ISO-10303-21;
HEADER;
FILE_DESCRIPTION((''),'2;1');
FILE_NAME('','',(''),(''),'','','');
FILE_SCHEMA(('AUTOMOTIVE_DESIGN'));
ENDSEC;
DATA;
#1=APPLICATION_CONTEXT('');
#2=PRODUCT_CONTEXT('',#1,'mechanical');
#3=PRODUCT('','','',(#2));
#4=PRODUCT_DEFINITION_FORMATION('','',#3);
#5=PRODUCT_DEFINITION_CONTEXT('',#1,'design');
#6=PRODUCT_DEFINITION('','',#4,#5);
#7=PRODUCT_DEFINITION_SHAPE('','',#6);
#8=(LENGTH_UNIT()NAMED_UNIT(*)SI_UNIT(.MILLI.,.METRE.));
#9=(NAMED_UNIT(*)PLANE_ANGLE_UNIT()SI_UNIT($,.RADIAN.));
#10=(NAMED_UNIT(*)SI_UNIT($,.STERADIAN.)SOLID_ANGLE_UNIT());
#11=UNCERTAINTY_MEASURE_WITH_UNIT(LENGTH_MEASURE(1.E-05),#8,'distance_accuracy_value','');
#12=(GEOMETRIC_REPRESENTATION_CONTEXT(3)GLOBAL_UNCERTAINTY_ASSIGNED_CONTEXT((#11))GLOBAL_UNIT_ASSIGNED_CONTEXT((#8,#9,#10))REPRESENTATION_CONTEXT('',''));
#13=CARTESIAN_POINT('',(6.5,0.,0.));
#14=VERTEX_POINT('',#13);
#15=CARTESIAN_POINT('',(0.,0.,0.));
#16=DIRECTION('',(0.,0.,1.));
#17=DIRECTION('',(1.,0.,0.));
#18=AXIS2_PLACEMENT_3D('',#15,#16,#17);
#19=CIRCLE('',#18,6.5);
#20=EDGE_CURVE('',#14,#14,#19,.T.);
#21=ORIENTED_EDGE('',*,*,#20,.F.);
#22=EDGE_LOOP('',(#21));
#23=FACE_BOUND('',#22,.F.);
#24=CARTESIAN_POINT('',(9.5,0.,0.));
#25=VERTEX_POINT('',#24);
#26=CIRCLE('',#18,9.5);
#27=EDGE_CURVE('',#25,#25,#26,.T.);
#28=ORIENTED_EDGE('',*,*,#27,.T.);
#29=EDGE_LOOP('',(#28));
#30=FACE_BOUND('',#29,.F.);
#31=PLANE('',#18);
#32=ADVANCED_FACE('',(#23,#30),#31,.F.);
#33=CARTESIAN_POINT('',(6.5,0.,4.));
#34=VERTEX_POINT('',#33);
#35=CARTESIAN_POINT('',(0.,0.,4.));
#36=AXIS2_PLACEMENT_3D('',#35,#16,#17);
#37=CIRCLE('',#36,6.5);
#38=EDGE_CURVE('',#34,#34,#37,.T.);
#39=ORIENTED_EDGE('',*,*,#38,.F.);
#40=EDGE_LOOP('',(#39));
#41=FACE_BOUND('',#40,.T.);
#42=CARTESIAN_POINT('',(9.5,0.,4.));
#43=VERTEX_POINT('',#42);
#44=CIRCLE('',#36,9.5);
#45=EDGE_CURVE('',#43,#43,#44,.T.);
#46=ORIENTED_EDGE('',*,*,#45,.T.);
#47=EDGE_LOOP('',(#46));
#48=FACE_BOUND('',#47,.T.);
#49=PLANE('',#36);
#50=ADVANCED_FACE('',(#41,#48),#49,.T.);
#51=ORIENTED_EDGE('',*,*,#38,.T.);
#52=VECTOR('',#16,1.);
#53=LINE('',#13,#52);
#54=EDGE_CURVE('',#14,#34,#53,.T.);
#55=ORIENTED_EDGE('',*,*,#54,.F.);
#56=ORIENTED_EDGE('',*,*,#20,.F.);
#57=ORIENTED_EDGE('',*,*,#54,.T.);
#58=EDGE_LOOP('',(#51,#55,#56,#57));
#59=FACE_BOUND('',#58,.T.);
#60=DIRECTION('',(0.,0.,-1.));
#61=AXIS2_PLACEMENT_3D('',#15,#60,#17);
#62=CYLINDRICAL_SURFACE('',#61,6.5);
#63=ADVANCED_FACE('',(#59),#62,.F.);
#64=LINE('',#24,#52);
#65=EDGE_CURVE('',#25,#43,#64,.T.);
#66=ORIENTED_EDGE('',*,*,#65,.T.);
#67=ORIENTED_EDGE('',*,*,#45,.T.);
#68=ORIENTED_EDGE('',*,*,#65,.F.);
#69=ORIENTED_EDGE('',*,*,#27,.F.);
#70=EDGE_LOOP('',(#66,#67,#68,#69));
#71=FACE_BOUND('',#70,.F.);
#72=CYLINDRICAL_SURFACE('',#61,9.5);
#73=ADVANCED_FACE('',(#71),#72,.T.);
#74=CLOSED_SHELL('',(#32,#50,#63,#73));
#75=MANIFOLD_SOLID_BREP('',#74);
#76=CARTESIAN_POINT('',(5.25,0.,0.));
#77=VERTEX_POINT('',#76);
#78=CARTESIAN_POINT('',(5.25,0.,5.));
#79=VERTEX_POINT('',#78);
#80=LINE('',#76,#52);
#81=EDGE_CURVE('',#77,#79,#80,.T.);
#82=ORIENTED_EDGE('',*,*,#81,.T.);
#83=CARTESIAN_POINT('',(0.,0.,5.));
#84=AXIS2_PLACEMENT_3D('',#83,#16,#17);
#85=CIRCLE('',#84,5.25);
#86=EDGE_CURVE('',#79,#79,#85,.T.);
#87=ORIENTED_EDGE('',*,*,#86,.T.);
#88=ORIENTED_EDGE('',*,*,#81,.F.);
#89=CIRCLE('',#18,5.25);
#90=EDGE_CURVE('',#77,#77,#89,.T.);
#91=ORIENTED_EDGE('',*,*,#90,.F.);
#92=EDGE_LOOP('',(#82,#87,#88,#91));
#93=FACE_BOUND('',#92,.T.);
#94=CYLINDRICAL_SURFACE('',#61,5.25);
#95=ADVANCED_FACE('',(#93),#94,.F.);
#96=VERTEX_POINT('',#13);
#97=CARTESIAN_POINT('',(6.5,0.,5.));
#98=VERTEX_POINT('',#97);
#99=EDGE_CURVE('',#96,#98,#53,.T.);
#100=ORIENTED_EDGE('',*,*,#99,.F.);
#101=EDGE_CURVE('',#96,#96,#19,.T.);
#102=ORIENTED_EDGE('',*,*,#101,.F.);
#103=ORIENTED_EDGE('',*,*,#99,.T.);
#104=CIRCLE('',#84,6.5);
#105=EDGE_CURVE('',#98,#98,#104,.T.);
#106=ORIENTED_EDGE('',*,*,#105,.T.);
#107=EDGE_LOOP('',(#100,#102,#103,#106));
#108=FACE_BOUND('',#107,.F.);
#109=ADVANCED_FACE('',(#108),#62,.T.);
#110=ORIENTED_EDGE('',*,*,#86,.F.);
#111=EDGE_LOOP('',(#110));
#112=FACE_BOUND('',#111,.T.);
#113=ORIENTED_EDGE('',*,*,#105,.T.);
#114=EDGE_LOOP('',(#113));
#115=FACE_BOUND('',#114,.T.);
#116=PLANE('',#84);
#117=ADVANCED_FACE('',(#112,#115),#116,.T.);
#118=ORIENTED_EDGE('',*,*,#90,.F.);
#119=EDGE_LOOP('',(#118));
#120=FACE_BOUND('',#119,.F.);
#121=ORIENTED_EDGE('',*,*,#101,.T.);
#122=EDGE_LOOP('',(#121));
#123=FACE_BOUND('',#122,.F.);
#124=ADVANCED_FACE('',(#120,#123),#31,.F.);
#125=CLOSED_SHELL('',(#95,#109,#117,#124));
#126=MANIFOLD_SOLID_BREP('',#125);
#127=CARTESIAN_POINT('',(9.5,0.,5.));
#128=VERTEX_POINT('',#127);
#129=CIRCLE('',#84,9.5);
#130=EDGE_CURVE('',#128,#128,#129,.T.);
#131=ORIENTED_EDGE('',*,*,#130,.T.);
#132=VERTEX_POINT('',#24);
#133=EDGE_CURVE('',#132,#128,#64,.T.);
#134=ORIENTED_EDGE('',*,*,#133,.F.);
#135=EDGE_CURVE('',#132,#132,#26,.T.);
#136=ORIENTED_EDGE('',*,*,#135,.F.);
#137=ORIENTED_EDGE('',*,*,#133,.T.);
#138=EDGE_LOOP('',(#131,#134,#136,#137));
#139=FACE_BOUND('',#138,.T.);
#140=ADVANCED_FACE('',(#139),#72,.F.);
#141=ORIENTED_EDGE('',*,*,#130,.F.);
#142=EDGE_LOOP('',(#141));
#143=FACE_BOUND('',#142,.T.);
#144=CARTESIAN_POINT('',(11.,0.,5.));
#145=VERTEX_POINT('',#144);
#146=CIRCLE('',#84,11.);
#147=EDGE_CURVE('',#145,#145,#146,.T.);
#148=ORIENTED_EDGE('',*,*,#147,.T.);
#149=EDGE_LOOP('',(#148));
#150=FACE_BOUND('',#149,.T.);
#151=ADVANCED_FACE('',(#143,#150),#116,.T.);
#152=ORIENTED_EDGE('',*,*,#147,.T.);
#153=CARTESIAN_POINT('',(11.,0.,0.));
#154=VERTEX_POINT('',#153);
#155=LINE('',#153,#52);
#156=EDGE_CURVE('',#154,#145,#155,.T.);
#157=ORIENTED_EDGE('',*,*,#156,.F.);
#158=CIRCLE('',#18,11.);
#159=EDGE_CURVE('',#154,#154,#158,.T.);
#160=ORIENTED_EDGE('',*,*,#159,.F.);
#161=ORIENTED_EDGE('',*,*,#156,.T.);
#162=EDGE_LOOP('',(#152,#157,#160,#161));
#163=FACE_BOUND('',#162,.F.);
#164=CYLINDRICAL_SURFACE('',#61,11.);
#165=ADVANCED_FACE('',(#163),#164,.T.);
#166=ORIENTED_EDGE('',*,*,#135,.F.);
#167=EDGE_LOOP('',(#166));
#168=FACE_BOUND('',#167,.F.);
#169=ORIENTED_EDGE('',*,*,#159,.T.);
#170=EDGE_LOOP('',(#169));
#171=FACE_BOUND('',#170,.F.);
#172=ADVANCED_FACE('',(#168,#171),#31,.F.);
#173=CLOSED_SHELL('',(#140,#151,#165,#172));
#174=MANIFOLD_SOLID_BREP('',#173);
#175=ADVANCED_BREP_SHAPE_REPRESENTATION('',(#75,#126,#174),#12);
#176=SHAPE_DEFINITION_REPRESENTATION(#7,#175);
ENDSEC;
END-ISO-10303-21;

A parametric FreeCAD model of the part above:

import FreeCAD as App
import Part
import Sketcher
from FreeCAD import Vector

doc = App.newDocument("Part")
params = doc.addObject("Spreadsheet::Sheet", "Params")
for row, (alias, value) in enumerate([
    ("sketch1_diameter", "22 mm"),
    ("sketch1_diameter2", "19 mm"),
    ("pad1_length", "5 mm"),
    ("sketch2_diameter", "13 mm"),
    ("sketch2_diameter2", "10.5 mm"),
    ("pad2_length", "5 mm"),
    ("sketch3_diameter", "19 mm"),
    ("sketch3_diameter2", "13 mm"),
    ("pad3_length", "4 mm"),
], start=1):
    params.set(f"A{row}", alias)
    params.set(f"B{row}", "=" + value)
    params.setAlias(f"B{row}", alias)

body = doc.addObject("PartDesign::Body", "Body")

# Sketch on XY plane
sketch1 = body.newObject("Sketcher::SketchObject", "Sketch")
sketch1.AttachmentSupport = (doc.getObject("XY_Plane"), [""])
sketch1.MapMode = "FlatFace"
sketch1.addGeometry(Part.Circle(Vector(0, 0, 0), Vector(0, 0, 1), 11), False)
sketch1.addGeometry(Part.Circle(Vector(0, 0, 0), Vector(0, 0, 1), 10), False)
sketch1.addConstraint(Sketcher.Constraint("Coincident", 0, 3, -1, 1))
sketch1.addConstraint(Sketcher.Constraint("Coincident", 1, 3, -1, 1))
sketch1.addConstraint(Sketcher.Constraint("Diameter", 0, 22.0))
sketch1.addConstraint(Sketcher.Constraint("Diameter", 1, 19.0))
sketch1.setExpression("Constraints[2]", "Params.sketch1_diameter")
sketch1.setExpression("Constraints[3]", "Params.sketch1_diameter2")
pad1 = body.newObject("PartDesign::Pad", "Pad")
pad1.Profile = sketch1
pad1.setExpression("Length", "Params.pad1_length")
body2 = doc.addObject("PartDesign::Body", "Body001")

# Sketch on XY plane
sketch2 = body2.newObject("Sketcher::SketchObject", "Sketch001")
sketch2.AttachmentSupport = (doc.getObject("XY_Plane001"), [""])
sketch2.MapMode = "FlatFace"
sketch2.addGeometry(Part.Circle(Vector(0, 0, 0), Vector(0, 0, 1), 6), False)
sketch2.addGeometry(Part.Circle(Vector(0, 0, 0), Vector(0, 0, 1), 5), False)
sketch2.addConstraint(Sketcher.Constraint("Coincident", 0, 3, -1, 1))
sketch2.addConstraint(Sketcher.Constraint("Coincident", 1, 3, -1, 1))
sketch2.addConstraint(Sketcher.Constraint("Diameter", 0, 13.0))
sketch2.addConstraint(Sketcher.Constraint("Diameter", 1, 10.5))
sketch2.setExpression("Constraints[2]", "Params.sketch2_diameter")
sketch2.setExpression("Constraints[3]", "Params.sketch2_diameter2")
pad2 = body2.newObject("PartDesign::Pad", "Pad001")
pad2.Profile = sketch2
pad2.setExpression("Length", "Params.pad2_length")
body3 = doc.addObject("PartDesign::Body", "Body002")

# Sketch on XY plane
sketch3 = body3.newObject("Sketcher::SketchObject", "Sketch002")
sketch3.AttachmentSupport = (doc.getObject("XY_Plane002"), [""])
sketch3.MapMode = "FlatFace"
sketch3.addGeometry(Part.Circle(Vector(0, 0, 0), Vector(0, 0, 1), 10), False)
sketch3.addGeometry(Part.Circle(Vector(0, 0, 0), Vector(0, 0, 1), 6), False)
sketch3.addConstraint(Sketcher.Constraint("Coincident", 0, 3, -1, 1))
sketch3.addConstraint(Sketcher.Constraint("Coincident", 1, 3, -1, 1))
sketch3.addConstraint(Sketcher.Constraint("Diameter", 0, 19.0))
sketch3.addConstraint(Sketcher.Constraint("Diameter", 1, 13.0))
sketch3.setExpression("Constraints[2]", "Params.sketch3_diameter")
sketch3.setExpression("Constraints[3]", "Params.sketch3_diameter2")
pad3 = body3.newObject("PartDesign::Pad", "Pad002")
pad3.Profile = sketch3
pad3.setExpression("Length", "Params.pad3_length")

doc.recompute()
